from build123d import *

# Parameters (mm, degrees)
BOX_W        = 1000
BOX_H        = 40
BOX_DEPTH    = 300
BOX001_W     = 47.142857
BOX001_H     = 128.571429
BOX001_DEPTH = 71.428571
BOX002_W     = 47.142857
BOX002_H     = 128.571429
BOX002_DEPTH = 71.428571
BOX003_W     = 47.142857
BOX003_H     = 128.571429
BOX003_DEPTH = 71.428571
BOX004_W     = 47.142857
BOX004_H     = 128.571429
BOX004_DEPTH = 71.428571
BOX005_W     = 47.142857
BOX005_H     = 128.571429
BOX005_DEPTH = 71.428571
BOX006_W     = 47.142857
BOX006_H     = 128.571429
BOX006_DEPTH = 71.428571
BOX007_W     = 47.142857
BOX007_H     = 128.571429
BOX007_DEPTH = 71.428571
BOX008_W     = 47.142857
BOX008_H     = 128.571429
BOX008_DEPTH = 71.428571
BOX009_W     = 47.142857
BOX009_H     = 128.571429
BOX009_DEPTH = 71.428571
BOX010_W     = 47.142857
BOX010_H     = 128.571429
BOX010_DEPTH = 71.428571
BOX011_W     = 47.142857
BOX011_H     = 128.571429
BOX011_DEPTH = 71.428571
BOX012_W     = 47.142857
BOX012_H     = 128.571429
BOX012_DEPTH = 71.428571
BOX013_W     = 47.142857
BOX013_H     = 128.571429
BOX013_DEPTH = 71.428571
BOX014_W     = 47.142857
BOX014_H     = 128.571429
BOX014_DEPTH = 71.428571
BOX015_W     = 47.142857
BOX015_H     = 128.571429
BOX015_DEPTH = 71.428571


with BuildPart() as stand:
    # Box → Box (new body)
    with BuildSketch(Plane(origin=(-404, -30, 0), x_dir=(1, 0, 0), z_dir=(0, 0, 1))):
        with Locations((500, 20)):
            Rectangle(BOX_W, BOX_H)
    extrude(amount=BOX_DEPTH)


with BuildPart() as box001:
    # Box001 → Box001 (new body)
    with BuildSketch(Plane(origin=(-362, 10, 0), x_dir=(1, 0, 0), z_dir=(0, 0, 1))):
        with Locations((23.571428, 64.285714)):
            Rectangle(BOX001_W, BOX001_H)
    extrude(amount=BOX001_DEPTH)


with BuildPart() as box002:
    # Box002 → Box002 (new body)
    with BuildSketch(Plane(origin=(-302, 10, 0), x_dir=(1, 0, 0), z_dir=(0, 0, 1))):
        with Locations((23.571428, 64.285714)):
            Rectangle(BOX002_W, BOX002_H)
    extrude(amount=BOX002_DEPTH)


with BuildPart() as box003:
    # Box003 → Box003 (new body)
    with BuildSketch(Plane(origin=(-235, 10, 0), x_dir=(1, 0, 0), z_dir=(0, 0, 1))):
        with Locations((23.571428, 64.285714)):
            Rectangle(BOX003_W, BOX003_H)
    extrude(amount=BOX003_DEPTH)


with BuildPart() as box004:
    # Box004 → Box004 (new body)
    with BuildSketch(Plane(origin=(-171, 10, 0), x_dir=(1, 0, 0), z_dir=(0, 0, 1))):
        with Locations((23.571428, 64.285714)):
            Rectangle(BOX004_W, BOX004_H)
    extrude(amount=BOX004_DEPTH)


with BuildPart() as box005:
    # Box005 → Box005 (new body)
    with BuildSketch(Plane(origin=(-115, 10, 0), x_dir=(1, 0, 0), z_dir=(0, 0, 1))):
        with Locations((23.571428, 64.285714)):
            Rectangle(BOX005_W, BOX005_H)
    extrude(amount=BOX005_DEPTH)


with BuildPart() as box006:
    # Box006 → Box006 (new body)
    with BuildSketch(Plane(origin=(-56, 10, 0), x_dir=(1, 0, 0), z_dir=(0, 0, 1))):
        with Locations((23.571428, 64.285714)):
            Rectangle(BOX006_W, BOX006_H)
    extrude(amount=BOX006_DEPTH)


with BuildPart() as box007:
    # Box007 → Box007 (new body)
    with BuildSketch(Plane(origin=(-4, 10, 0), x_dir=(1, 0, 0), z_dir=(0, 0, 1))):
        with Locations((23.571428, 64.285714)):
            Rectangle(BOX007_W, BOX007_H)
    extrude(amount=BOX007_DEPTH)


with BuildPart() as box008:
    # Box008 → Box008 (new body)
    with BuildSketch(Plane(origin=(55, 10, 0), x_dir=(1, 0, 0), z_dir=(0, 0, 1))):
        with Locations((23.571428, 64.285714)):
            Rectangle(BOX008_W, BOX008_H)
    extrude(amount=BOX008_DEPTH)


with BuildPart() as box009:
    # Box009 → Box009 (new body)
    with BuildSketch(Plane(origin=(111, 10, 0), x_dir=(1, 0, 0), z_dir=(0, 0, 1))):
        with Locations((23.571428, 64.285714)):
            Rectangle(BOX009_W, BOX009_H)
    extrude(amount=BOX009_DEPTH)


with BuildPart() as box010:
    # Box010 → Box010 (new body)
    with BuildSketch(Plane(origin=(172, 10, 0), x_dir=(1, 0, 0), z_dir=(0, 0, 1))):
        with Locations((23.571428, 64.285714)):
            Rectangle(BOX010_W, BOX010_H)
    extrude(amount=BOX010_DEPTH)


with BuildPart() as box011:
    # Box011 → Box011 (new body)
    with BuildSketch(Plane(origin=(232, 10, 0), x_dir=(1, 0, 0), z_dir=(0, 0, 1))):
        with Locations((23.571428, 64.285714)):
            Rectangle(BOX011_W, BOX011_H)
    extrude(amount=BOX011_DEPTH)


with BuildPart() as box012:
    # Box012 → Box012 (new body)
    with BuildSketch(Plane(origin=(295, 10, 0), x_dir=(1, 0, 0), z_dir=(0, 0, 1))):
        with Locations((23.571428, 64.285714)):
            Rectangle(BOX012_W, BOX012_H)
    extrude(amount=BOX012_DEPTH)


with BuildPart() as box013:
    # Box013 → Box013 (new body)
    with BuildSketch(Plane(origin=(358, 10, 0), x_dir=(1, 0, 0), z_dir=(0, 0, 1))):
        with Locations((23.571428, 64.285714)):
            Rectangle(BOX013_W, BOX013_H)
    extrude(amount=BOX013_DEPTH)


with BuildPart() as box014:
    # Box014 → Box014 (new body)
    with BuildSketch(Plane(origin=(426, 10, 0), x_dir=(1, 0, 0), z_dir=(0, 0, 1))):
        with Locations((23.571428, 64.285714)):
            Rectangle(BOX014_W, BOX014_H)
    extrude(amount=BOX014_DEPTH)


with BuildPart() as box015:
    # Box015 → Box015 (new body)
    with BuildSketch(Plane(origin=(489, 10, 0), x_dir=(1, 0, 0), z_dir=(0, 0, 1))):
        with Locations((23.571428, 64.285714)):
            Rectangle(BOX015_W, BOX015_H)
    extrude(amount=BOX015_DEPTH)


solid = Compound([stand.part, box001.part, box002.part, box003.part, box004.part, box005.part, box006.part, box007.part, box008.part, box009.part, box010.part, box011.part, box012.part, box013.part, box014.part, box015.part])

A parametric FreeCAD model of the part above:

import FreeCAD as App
import Part
import Sketcher
from FreeCAD import Vector


def add_polygon(sketch, points):
    """Adds a closed chain of lines whose ends are joined by coincident constraints."""
    first, n = sketch.GeometryCount, len(points)
    for a, b in zip(points, points[1:] + points[:1]):
        sketch.addGeometry(Part.LineSegment(App.Vector(*a, 0), App.Vector(*b, 0)), False)
    for i in range(n):
        sketch.addConstraint(Sketcher.Constraint("Coincident", first + i, 2, first + (i + 1) % n, 1))

doc = App.newDocument("Part")
params = doc.addObject("Spreadsheet::Sheet", "Params")
for row, (alias, value) in enumerate([
    ("sketch1_width", "1000 mm"),
    ("sketch1_height", "40 mm"),
    ("pad1_length", "300 mm"),
    ("pad2_length", "71.428571 mm"),
    ("pad3_length", "71.428571 mm"),
    ("pad4_length", "71.428571 mm"),
    ("pad5_length", "71.428571 mm"),
    ("pad6_length", "71.428571 mm"),
    ("pad7_length", "71.428571 mm"),
    ("pad8_length", "71.428571 mm"),
    ("pad9_length", "71.428571 mm"),
    ("pad10_length", "71.428571 mm"),
    ("pad11_length", "71.428571 mm"),
    ("pad12_length", "71.428571 mm"),
    ("pad13_length", "71.428571 mm"),
    ("pad14_length", "71.428571 mm"),
    ("pad15_length", "71.428571 mm"),
    ("pad16_length", "71.428571 mm"),
], start=1):
    params.set(f"A{row}", alias)
    params.set(f"B{row}", "=" + value)
    params.setAlias(f"B{row}", alias)

body = doc.addObject("PartDesign::Body", "Body")

# Sketch on XY plane
sketch1 = doc.addObject("Sketcher::SketchObject", "Sketch")
body.addObject(sketch1)
sketch1.AttachmentSupport = (doc.XY_Plane, [""])
sketch1.MapMode = "FlatFace"
add_polygon(sketch1, [(-404, 10), (-404, -30), (596, -30), (596, 10)])  # lines 0-3
sketch1.addConstraint(Sketcher.Constraint("Vertical", 0))
sketch1.addConstraint(Sketcher.Constraint("Horizontal", 1))
sketch1.addConstraint(Sketcher.Constraint("Vertical", 2))
sketch1.addConstraint(Sketcher.Constraint("Horizontal", 3))
sketch1.addConstraint(Sketcher.Constraint("DistanceX", 1, 1, 1, 2, 1000.0))
sketch1.addConstraint(Sketcher.Constraint("DistanceY", 0, 2, 0, 1, 40.0))
sketch1.addConstraint(Sketcher.Constraint("DistanceX", 0, 2, -1, 1, 404.0))
sketch1.addConstraint(Sketcher.Constraint("DistanceY", 0, 2, -1, 1, 30.0))
sketch1.setExpression("Constraints[8]", "Params.sketch1_width")
sketch1.setExpression("Constraints[9]", "Params.sketch1_height")
pad1 = doc.addObject("PartDesign::Pad", "Pad")
body.addObject(pad1)
pad1.Profile = sketch1
pad1.setExpression("Length", "Params.pad1_length")
body2 = doc.addObject("PartDesign::Body", "Body001")

# Sketch on XY plane
sketch2 = doc.addObject("Sketcher::SketchObject", "Sketch001")
body2.addObject(sketch2)
sketch2.AttachmentSupport = (doc.getObject("XY_Plane001"), [""])
sketch2.MapMode = "FlatFace"
add_polygon(sketch2, [(-362, 139), (-362, 10), (-315, 10), (-315, 139)])  # lines 0-3
sketch2.addConstraint(Sketcher.Constraint("Vertical", 0))
sketch2.addConstraint(Sketcher.Constraint("Horizontal", 1))
sketch2.addConstraint(Sketcher.Constraint("Vertical", 2))
sketch2.addConstraint(Sketcher.Constraint("Horizontal", 3))
sketch2.addConstraint(Sketcher.Constraint("DistanceX", 0, 2, -1, 1, 362.0))
sketch2.addConstraint(Sketcher.Constraint("DistanceY", -1, 1, 0, 2, 9.999999))
sketch2.addConstraint(Sketcher.Constraint("DistanceY", 0, 2, 0, 1, 128.571429))
sketch2.addConstraint(Sketcher.Constraint("DistanceX", 1, 1, 1, 2, 47.142857))
pad2 = doc.addObject("PartDesign::Pad", "Pad001")
body2.addObject(pad2)
pad2.Profile = sketch2
pad2.setExpression("Length", "Params.pad2_length")
body3 = doc.addObject("PartDesign::Body", "Body002")

# Sketch on XY plane
sketch3 = doc.addObject("Sketcher::SketchObject", "Sketch002")
body3.addObject(sketch3)
sketch3.AttachmentSupport = (doc.getObject("XY_Plane002"), [""])
sketch3.MapMode = "FlatFace"
add_polygon(sketch3, [(-302, 139), (-302, 10), (-255, 10), (-255, 139)])  # lines 0-3
sketch3.addConstraint(Sketcher.Constraint("Vertical", 0))
sketch3.addConstraint(Sketcher.Constraint("Horizontal", 1))
sketch3.addConstraint(Sketcher.Constraint("Vertical", 2))
sketch3.addConstraint(Sketcher.Constraint("Horizontal", 3))
sketch3.addConstraint(Sketcher.Constraint("DistanceX", 0, 2, -1, 1, 302.0))
sketch3.addConstraint(Sketcher.Constraint("DistanceY", -1, 1, 0, 2, 9.999999))
sketch3.addConstraint(Sketcher.Constraint("DistanceY", 0, 2, 0, 1, 128.571429))
sketch3.addConstraint(Sketcher.Constraint("DistanceX", 1, 1, 1, 2, 47.142857))
pad3 = doc.addObject("PartDesign::Pad", "Pad002")
body3.addObject(pad3)
pad3.Profile = sketch3
pad3.setExpression("Length", "Params.pad3_length")
body4 = doc.addObject("PartDesign::Body", "Body003")

# Sketch on XY plane
sketch4 = doc.addObject("Sketcher::SketchObject", "Sketch003")
body4.addObject(sketch4)
sketch4.AttachmentSupport = (doc.getObject("XY_Plane003"), [""])
sketch4.MapMode = "FlatFace"
add_polygon(sketch4, [(-235, 139), (-235, 10), (-188, 10), (-188, 139)])  # lines 0-3
sketch4.addConstraint(Sketcher.Constraint("Vertical", 0))
sketch4.addConstraint(Sketcher.Constraint("Horizontal", 1))
sketch4.addConstraint(Sketcher.Constraint("Vertical", 2))
sketch4.addConstraint(Sketcher.Constraint("Horizontal", 3))
sketch4.addConstraint(Sketcher.Constraint("DistanceX", 0, 2, -1, 1, 235.0))
sketch4.addConstraint(Sketcher.Constraint("DistanceY", -1, 1, 0, 2, 9.999999))
sketch4.addConstraint(Sketcher.Constraint("DistanceY", 0, 2, 0, 1, 128.571429))
sketch4.addConstraint(Sketcher.Constraint("DistanceX", 1, 1, 1, 2, 47.142857))
pad4 = doc.addObject("PartDesign::Pad", "Pad003")
body4.addObject(pad4)
pad4.Profile = sketch4
pad4.setExpression("Length", "Params.pad4_length")
body5 = doc.addObject("PartDesign::Body", "Body004")

# Sketch on XY plane
sketch5 = doc.addObject("Sketcher::SketchObject", "Sketch004")
body5.addObject(sketch5)
sketch5.AttachmentSupport = (doc.getObject("XY_Plane004"), [""])
sketch5.MapMode = "FlatFace"
add_polygon(sketch5, [(-171, 139), (-171, 10), (-124, 10), (-124, 139)])  # lines 0-3
sketch5.addConstraint(Sketcher.Constraint("Vertical", 0))
sketch5.addConstraint(Sketcher.Constraint("Horizontal", 1))
sketch5.addConstraint(Sketcher.Constraint("Vertical", 2))
sketch5.addConstraint(Sketcher.Constraint("Horizontal", 3))
sketch5.addConstraint(Sketcher.Constraint("DistanceX", 0, 2, -1, 1, 171.0))
sketch5.addConstraint(Sketcher.Constraint("DistanceY", -1, 1, 0, 2, 9.999999))
sketch5.addConstraint(Sketcher.Constraint("DistanceY", 0, 2, 0, 1, 128.571429))
sketch5.addConstraint(Sketcher.Constraint("DistanceX", 1, 1, 1, 2, 47.142857))
pad5 = doc.addObject("PartDesign::Pad", "Pad004")
body5.addObject(pad5)
pad5.Profile = sketch5
pad5.setExpression("Length", "Params.pad5_length")
body6 = doc.addObject("PartDesign::Body", "Body005")

# Sketch on XY plane
sketch6 = doc.addObject("Sketcher::SketchObject", "Sketch005")
body6.addObject(sketch6)
sketch6.AttachmentSupport = (doc.getObject("XY_Plane005"), [""])
sketch6.MapMode = "FlatFace"
add_polygon(sketch6, [(-115, 139), (-115, 10), (-68, 10), (-68, 139)])  # lines 0-3
sketch6.addConstraint(Sketcher.Constraint("Vertical", 0))
sketch6.addConstraint(Sketcher.Constraint("Horizontal", 1))
sketch6.addConstraint(Sketcher.Constraint("Vertical", 2))
sketch6.addConstraint(Sketcher.Constraint("Horizontal", 3))
sketch6.addConstraint(Sketcher.Constraint("DistanceX", 0, 2, -1, 1, 115.0))
sketch6.addConstraint(Sketcher.Constraint("DistanceY", -1, 1, 0, 2, 9.999999))
sketch6.addConstraint(Sketcher.Constraint("DistanceY", 0, 2, 0, 1, 128.571429))
sketch6.addConstraint(Sketcher.Constraint("DistanceX", 1, 1, 1, 2, 47.142857))
pad6 = doc.addObject("PartDesign::Pad", "Pad005")
body6.addObject(pad6)
pad6.Profile = sketch6
pad6.setExpression("Length", "Params.pad6_length")
body7 = doc.addObject("PartDesign::Body", "Body006")

# Sketch on XY plane
sketch7 = doc.addObject("Sketcher::SketchObject", "Sketch006")
body7.addObject(sketch7)
sketch7.AttachmentSupport = (doc.getObject("XY_Plane006"), [""])
sketch7.MapMode = "FlatFace"
add_polygon(sketch7, [(-56, 139), (-56, 10), (-9, 10), (-9, 139)])  # lines 0-3
sketch7.addConstraint(Sketcher.Constraint("Vertical", 0))
sketch7.addConstraint(Sketcher.Constraint("Horizontal", 1))
sketch7.addConstraint(Sketcher.Constraint("Vertical", 2))
sketch7.addConstraint(Sketcher.Constraint("Horizontal", 3))
sketch7.addConstraint(Sketcher.Constraint("DistanceX", 0, 2, -1, 1, 56.0))
sketch7.addConstraint(Sketcher.Constraint("DistanceY", -1, 1, 0, 2, 9.999999))
sketch7.addConstraint(Sketcher.Constraint("DistanceY", 0, 2, 0, 1, 128.571429))
sketch7.addConstraint(Sketcher.Constraint("DistanceX", 1, 1, 1, 2, 47.142857))
pad7 = doc.addObject("PartDesign::Pad", "Pad006")
body7.addObject(pad7)
pad7.Profile = sketch7
pad7.setExpression("Length", "Params.pad7_length")
body8 = doc.addObject("PartDesign::Body", "Body007")

# Sketch on XY plane
sketch8 = doc.addObject("Sketcher::SketchObject", "Sketch007")
body8.addObject(sketch8)
sketch8.AttachmentSupport = (doc.getObject("XY_Plane007"), [""])
sketch8.MapMode = "FlatFace"
add_polygon(sketch8, [(-4, 139), (-4, 10), (43, 10), (43, 139)])  # lines 0-3
sketch8.addConstraint(Sketcher.Constraint("Vertical", 0))
sketch8.addConstraint(Sketcher.Constraint("Horizontal", 1))
sketch8.addConstraint(Sketcher.Constraint("Vertical", 2))
sketch8.addConstraint(Sketcher.Constraint("Horizontal", 3))
sketch8.addConstraint(Sketcher.Constraint("DistanceX", 0, 2, -1, 1, 4.0))
sketch8.addConstraint(Sketcher.Constraint("DistanceY", -1, 1, 0, 2, 9.999999))
sketch8.addConstraint(Sketcher.Constraint("DistanceY", 0, 2, 0, 1, 128.571429))
sketch8.addConstraint(Sketcher.Constraint("DistanceX", 1, 1, 1, 2, 47.142857))
pad8 = doc.addObject("PartDesign::Pad", "Pad007")
body8.addObject(pad8)
pad8.Profile = sketch8
pad8.setExpression("Length", "Params.pad8_length")
body9 = doc.addObject("PartDesign::Body", "Body008")

# Sketch on XY plane
sketch9 = doc.addObject("Sketcher::SketchObject", "Sketch008")
body9.addObject(sketch9)
sketch9.AttachmentSupport = (doc.getObject("XY_Plane008"), [""])
sketch9.MapMode = "FlatFace"
add_polygon(sketch9, [(55, 139), (55, 10), (102, 10), (102, 139)])  # lines 0-3
sketch9.addConstraint(Sketcher.Constraint("Vertical", 0))
sketch9.addConstraint(Sketcher.Constraint("Horizontal", 1))
sketch9.addConstraint(Sketcher.Constraint("Vertical", 2))
sketch9.addConstraint(Sketcher.Constraint("Horizontal", 3))
sketch9.addConstraint(Sketcher.Constraint("DistanceX", -1, 1, 0, 2, 55.0))
sketch9.addConstraint(Sketcher.Constraint("DistanceY", -1, 1, 0, 2, 9.999999))
sketch9.addConstraint(Sketcher.Constraint("DistanceY", 0, 2, 0, 1, 128.571429))
sketch9.addConstraint(Sketcher.Constraint("DistanceX", 1, 1, 1, 2, 47.142857))
pad9 = doc.addObject("PartDesign::Pad", "Pad008")
body9.addObject(pad9)
pad9.Profile = sketch9
pad9.setExpression("Length", "Params.pad9_length")
body10 = doc.addObject("PartDesign::Body", "Body009")

# Sketch on XY plane
sketch10 = doc.addObject("Sketcher::SketchObject", "Sketch009")
body10.addObject(sketch10)
sketch10.AttachmentSupport = (doc.getObject("XY_Plane009"), [""])
sketch10.MapMode = "FlatFace"
add_polygon(sketch10, [(111, 139), (111, 10), (158, 10), (158, 139)])  # lines 0-3
sketch10.addConstraint(Sketcher.Constraint("Vertical", 0))
sketch10.addConstraint(Sketcher.Constraint("Horizontal", 1))
sketch10.addConstraint(Sketcher.Constraint("Vertical", 2))
sketch10.addConstraint(Sketcher.Constraint("Horizontal", 3))
sketch10.addConstraint(Sketcher.Constraint("DistanceX", -1, 1, 0, 2, 111.0))
sketch10.addConstraint(Sketcher.Constraint("DistanceY", -1, 1, 0, 2, 9.999999))
sketch10.addConstraint(Sketcher.Constraint("DistanceY", 0, 2, 0, 1, 128.571429))
sketch10.addConstraint(Sketcher.Constraint("DistanceX", 1, 1, 1, 2, 47.142857))
pad10 = doc.addObject("PartDesign::Pad", "Pad009")
body10.addObject(pad10)
pad10.Profile = sketch10
pad10.setExpression("Length", "Params.pad10_length")
body11 = doc.addObject("PartDesign::Body", "Body010")

# Sketch on XY plane
sketch11 = doc.addObject("Sketcher::SketchObject", "Sketch010")
body11.addObject(sketch11)
sketch11.AttachmentSupport = (doc.getObject("XY_Plane010"), [""])
sketch11.MapMode = "FlatFace"
add_polygon(sketch11, [(172, 139), (172, 10), (219, 10), (219, 139)])  # lines 0-3
sketch11.addConstraint(Sketcher.Constraint("Vertical", 0))
sketch11.addConstraint(Sketcher.Constraint("Horizontal", 1))
sketch11.addConstraint(Sketcher.Constraint("Vertical", 2))
sketch11.addConstraint(Sketcher.Constraint("Horizontal", 3))
sketch11.addConstraint(Sketcher.Constraint("DistanceX", -1, 1, 0, 2, 172.0))
sketch11.addConstraint(Sketcher.Constraint("DistanceY", -1, 1, 0, 2, 9.999999))
sketch11.addConstraint(Sketcher.Constraint("DistanceY", 0, 2, 0, 1, 128.571429))
sketch11.addConstraint(Sketcher.Constraint("DistanceX", 1, 1, 1, 2, 47.142857))
pad11 = doc.addObject("PartDesign::Pad", "Pad010")
body11.addObject(pad11)
pad11.Profile = sketch11
pad11.setExpression("Length", "Params.pad11_length")
body12 = doc.addObject("PartDesign::Body", "Body011")

# Sketch on XY plane
sketch12 = doc.addObject("Sketcher::SketchObject", "Sketch011")
body12.addObject(sketch12)
sketch12.AttachmentSupport = (doc.getObject("XY_Plane011"), [""])
sketch12.MapMode = "FlatFace"
add_polygon(sketch12, [(232, 139), (232, 10), (279, 10), (279, 139)])  # lines 0-3
sketch12.addConstraint(Sketcher.Constraint("Vertical", 0))
sketch12.addConstraint(Sketcher.Constraint("Horizontal", 1))
sketch12.addConstraint(Sketcher.Constraint("Vertical", 2))
sketch12.addConstraint(Sketcher.Constraint("Horizontal", 3))
sketch12.addConstraint(Sketcher.Constraint("DistanceX", -1, 1, 0, 2, 232.0))
sketch12.addConstraint(Sketcher.Constraint("DistanceY", -1, 1, 0, 2, 9.999999))
sketch12.addConstraint(Sketcher.Constraint("DistanceY", 0, 2, 0, 1, 128.571429))
sketch12.addConstraint(Sketcher.Constraint("DistanceX", 1, 1, 1, 2, 47.142857))
pad12 = doc.addObject("PartDesign::Pad", "Pad011")
body12.addObject(pad12)
pad12.Profile = sketch12
pad12.setExpression("Length", "Params.pad12_length")
body13 = doc.addObject("PartDesign::Body", "Body012")

# Sketch on XY plane
sketch13 = doc.addObject("Sketcher::SketchObject", "Sketch012")
body13.addObject(sketch13)
sketch13.AttachmentSupport = (doc.getObject("XY_Plane012"), [""])
sketch13.MapMode = "FlatFace"
add_polygon(sketch13, [(295, 139), (295, 10), (342, 10), (342, 139)])  # lines 0-3
sketch13.addConstraint(Sketcher.Constraint("Vertical", 0))
sketch13.addConstraint(Sketcher.Constraint("Horizontal", 1))
sketch13.addConstraint(Sketcher.Constraint("Vertical", 2))
sketch13.addConstraint(Sketcher.Constraint("Horizontal", 3))
sketch13.addConstraint(Sketcher.Constraint("DistanceX", -1, 1, 0, 2, 295.0))
sketch13.addConstraint(Sketcher.Constraint("DistanceY", -1, 1, 0, 2, 9.999999))
sketch13.addConstraint(Sketcher.Constraint("DistanceY", 0, 2, 0, 1, 128.571429))
sketch13.addConstraint(Sketcher.Constraint("DistanceX", 1, 1, 1, 2, 47.142857))
pad13 = doc.addObject("PartDesign::Pad", "Pad012")
body13.addObject(pad13)
pad13.Profile = sketch13
pad13.setExpression("Length", "Params.pad13_length")
body14 = doc.addObject("PartDesign::Body", "Body013")

# Sketch on XY plane
sketch14 = doc.addObject("Sketcher::SketchObject", "Sketch013")
body14.addObject(sketch14)
sketch14.AttachmentSupport = (doc.getObject("XY_Plane013"), [""])
sketch14.MapMode = "FlatFace"
add_polygon(sketch14, [(358, 139), (358, 10), (405, 10), (405, 139)])  # lines 0-3
sketch14.addConstraint(Sketcher.Constraint("Vertical", 0))
sketch14.addConstraint(Sketcher.Constraint("Horizontal", 1))
sketch14.addConstraint(Sketcher.Constraint("Vertical", 2))
sketch14.addConstraint(Sketcher.Constraint("Horizontal", 3))
sketch14.addConstraint(Sketcher.Constraint("DistanceX", -1, 1, 0, 2, 358.0))
sketch14.addConstraint(Sketcher.Constraint("DistanceY", -1, 1, 0, 2, 9.999999))
sketch14.addConstraint(Sketcher.Constraint("DistanceY", 0, 2, 0, 1, 128.571429))
sketch14.addConstraint(Sketcher.Constraint("DistanceX", 1, 1, 1, 2, 47.142857))
pad14 = doc.addObject("PartDesign::Pad", "Pad013")
body14.addObject(pad14)
pad14.Profile = sketch14
pad14.setExpression("Length", "Params.pad14_length")
body15 = doc.addObject("PartDesign::Body", "Body014")

# Sketch on XY plane
sketch15 = doc.addObject("Sketcher::SketchObject", "Sketch014")
body15.addObject(sketch15)
sketch15.AttachmentSupport = (doc.getObject("XY_Plane014"), [""])
sketch15.MapMode = "FlatFace"
add_polygon(sketch15, [(426, 139), (426, 10), (473, 10), (473, 139)])  # lines 0-3
sketch15.addConstraint(Sketcher.Constraint("Vertical", 0))
sketch15.addConstraint(Sketcher.Constraint("Horizontal", 1))
sketch15.addConstraint(Sketcher.Constraint("Vertical", 2))
sketch15.addConstraint(Sketcher.Constraint("Horizontal", 3))
sketch15.addConstraint(Sketcher.Constraint("DistanceX", -1, 1, 0, 2, 426.0))
sketch15.addConstraint(Sketcher.Constraint("DistanceY", -1, 1, 0, 2, 9.999999))
sketch15.addConstraint(Sketcher.Constraint("DistanceY", 0, 2, 0, 1, 128.571429))
sketch15.addConstraint(Sketcher.Constraint("DistanceX", 1, 1, 1, 2, 47.142857))
pad15 = doc.addObject("PartDesign::Pad", "Pad014")
body15.addObject(pad15)
pad15.Profile = sketch15
pad15.setExpression("Length", "Params.pad15_length")
body16 = doc.addObject("PartDesign::Body", "Body015")

# Sketch on XY plane
sketch16 = doc.addObject("Sketcher::SketchObject", "Sketch015")
body16.addObject(sketch16)
sketch16.AttachmentSupport = (doc.getObject("XY_Plane015"), [""])
sketch16.MapMode = "FlatFace"
add_polygon(sketch16, [(489, 139), (489, 10), (536, 10), (536, 139)])  # lines 0-3
sketch16.addConstraint(Sketcher.Constraint("Vertical", 0))
sketch16.addConstraint(Sketcher.Constraint("Horizontal", 1))
sketch16.addConstraint(Sketcher.Constraint("Vertical", 2))
sketch16.addConstraint(Sketcher.Constraint("Horizontal", 3))
sketch16.addConstraint(Sketcher.Constraint("DistanceX", -1, 1, 0, 2, 489.0))
sketch16.addConstraint(Sketcher.Constraint("DistanceY", -1, 1, 0, 2, 9.999999))
sketch16.addConstraint(Sketcher.Constraint("DistanceY", 0, 2, 0, 1, 128.571429))
sketch16.addConstraint(Sketcher.Constraint("DistanceX", 1, 1, 1, 2, 47.142857))
pad16 = doc.addObject("PartDesign::Pad", "Pad015")
body16.addObject(pad16)
pad16.Profile = sketch16
pad16.setExpression("Length", "Params.pad16_length")

doc.recompute()
